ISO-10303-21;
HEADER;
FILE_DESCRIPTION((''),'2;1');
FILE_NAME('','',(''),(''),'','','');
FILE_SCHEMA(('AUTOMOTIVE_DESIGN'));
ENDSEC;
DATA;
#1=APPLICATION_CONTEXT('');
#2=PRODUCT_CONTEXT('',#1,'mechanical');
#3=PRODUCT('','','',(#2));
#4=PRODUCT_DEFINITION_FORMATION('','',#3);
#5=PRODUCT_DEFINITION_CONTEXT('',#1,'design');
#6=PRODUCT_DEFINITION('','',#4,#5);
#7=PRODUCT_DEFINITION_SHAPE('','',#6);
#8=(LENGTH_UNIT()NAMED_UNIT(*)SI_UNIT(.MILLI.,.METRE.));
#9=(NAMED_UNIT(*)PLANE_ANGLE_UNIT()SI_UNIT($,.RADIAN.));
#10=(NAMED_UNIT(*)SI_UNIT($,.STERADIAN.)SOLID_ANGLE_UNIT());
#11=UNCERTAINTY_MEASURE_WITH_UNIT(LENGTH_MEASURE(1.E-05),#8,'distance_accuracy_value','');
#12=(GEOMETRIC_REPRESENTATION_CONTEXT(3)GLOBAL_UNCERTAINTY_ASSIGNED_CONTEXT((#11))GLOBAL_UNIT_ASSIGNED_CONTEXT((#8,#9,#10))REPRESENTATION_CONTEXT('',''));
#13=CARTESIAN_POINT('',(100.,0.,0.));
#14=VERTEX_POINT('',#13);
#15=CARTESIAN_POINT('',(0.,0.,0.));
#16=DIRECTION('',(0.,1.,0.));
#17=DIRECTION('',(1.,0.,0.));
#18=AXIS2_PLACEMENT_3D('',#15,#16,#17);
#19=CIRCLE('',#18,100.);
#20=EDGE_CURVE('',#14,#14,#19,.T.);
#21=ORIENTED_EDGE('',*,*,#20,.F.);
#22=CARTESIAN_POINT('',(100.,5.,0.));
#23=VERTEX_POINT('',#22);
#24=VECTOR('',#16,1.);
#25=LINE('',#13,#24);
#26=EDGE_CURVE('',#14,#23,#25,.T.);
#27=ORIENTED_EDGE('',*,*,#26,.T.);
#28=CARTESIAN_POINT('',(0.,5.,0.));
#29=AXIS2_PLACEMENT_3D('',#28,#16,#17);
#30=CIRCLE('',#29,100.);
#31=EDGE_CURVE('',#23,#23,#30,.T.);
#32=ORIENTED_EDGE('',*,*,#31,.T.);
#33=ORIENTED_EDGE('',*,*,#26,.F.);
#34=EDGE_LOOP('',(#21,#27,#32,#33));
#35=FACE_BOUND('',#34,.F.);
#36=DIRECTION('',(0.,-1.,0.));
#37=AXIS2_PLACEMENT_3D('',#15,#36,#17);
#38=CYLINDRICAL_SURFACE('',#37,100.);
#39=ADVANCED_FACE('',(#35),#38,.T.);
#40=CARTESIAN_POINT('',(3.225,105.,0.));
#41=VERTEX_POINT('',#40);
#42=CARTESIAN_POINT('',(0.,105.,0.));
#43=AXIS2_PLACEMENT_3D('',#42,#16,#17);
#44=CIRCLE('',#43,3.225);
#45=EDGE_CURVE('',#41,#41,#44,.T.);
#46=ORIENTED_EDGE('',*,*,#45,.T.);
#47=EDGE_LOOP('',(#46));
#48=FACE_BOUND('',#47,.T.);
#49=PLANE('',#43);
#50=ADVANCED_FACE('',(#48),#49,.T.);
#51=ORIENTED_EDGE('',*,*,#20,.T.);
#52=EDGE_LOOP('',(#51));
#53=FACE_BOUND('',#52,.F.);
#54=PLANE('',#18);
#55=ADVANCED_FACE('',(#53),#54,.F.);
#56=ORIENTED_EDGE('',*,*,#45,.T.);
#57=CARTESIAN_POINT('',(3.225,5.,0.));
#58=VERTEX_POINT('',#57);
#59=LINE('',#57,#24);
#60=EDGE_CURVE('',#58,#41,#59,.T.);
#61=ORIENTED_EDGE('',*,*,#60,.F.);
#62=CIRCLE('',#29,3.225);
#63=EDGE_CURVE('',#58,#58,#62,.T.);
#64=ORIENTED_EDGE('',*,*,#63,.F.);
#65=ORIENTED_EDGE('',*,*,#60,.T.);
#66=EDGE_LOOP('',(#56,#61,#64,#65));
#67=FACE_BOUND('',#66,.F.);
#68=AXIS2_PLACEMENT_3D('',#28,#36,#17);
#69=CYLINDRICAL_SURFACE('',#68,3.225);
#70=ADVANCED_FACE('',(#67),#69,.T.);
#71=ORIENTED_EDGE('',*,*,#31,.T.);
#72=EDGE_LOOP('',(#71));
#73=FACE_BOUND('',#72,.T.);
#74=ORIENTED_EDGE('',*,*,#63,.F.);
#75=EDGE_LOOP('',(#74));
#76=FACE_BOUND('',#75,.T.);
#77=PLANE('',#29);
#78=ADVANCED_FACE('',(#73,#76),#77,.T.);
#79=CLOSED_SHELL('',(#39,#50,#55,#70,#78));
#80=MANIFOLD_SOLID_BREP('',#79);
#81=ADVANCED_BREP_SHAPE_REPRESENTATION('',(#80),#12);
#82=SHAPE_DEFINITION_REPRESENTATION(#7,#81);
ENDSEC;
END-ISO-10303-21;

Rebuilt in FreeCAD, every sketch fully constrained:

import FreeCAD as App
import Part
import Sketcher
Q = App.Units.Quantity

doc = App.newDocument("Part")
body = doc.addObject("PartDesign::Body", "Body")

sketch1 = body.newObject("Sketcher::SketchObject", "Sketch")
sketch1.AttachmentSupport = (doc.getObject("XZ_Plane"), [""])
sketch1.MapMode = "FlatFace"
sketch1.addGeometry(Part.Circle(App.Vector(0, 0, 0), App.Vector(0, 0, 1), 100), False)
sketch1.addConstraint([
    Sketcher.Constraint("Coincident", 0, 3, -1, 1),
    Sketcher.Constraint("Diameter", 0, Q("200 mm")),
])
pad1 = body.newObject("PartDesign::Pad", "Pad")
pad1.Profile = sketch1
pad1.Length = 5
pad1.Reversed = True

sketch2 = body.newObject("Sketcher::SketchObject", "Sketch001")
sketch2.AttachmentSupport = (doc.getObject("XZ_Plane"), [""])
sketch2.MapMode = "FlatFace"
sketch2.AttachmentOffset = App.Placement(App.Vector(0, 0, -5), App.Rotation())
sketch2.addGeometry(Part.Circle(App.Vector(0, 0, 0), App.Vector(0, 0, 1), 3.2), False)
sketch2.addConstraint([
    Sketcher.Constraint("Coincident", 0, 3, -1, 1),
    Sketcher.Constraint("Diameter", 0, Q("6.45 mm")),
])
pad2 = body.newObject("PartDesign::Pad", "Pad001")
pad2.Profile = sketch2
pad2.Length = 100
pad2.Reversed = True

doc.recompute()
